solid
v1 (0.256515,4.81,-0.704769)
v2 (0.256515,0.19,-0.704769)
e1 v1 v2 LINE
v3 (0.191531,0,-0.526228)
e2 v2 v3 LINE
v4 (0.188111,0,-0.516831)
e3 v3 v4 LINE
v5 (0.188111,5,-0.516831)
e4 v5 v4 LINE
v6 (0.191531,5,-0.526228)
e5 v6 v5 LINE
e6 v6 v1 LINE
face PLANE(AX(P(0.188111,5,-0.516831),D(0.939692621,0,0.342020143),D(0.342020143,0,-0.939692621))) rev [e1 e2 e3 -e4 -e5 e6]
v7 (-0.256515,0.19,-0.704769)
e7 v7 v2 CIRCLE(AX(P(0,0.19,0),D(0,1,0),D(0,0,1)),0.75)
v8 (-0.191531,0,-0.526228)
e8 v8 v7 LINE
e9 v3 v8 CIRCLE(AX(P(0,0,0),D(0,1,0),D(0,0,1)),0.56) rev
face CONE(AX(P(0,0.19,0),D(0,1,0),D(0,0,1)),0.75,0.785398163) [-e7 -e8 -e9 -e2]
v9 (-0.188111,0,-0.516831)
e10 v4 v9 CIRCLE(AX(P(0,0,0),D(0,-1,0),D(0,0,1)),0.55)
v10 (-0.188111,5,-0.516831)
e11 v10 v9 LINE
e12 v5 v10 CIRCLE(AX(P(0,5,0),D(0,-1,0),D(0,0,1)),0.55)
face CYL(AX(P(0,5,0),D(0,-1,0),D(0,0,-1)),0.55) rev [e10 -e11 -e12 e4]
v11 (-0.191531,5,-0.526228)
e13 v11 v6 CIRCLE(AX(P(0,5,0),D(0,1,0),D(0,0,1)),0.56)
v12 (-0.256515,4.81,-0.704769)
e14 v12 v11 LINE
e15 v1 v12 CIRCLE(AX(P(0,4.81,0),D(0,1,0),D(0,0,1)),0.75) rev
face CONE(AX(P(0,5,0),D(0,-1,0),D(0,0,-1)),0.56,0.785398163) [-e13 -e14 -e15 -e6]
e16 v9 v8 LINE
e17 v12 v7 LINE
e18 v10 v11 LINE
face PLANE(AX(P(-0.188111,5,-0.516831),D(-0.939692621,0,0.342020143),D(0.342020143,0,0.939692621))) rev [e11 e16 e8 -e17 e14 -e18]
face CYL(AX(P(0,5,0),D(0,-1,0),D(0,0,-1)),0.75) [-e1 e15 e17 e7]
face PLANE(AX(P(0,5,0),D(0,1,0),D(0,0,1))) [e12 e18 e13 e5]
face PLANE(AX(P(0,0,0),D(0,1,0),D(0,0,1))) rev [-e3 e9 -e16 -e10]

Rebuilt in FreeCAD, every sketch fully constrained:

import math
import FreeCAD as App
import Part
import Sketcher
from FreeCAD import Vector
Q = App.Units.Quantity


def edges_at(feature, points):
    """Names of the edges that pass closest to the given points."""
    edges = feature.Shape.Edges
    near = lambda p: min(range(len(edges)), key=lambda i: edges[i].distToShape(Part.Vertex(*p))[0])
    return sorted({f"Edge{near(p) + 1}" for p in points})

doc = App.newDocument("Part")
body = doc.addObject("PartDesign::Body", "Body")

# Sketch on XZ plane
sketch1 = body.newObject("Sketcher::SketchObject", "Sketch")
sketch1.AttachmentSupport = (doc.getObject("XZ_Plane"), [""])
sketch1.MapMode = "FlatFace"
sketch1.addGeometry(Part.LineSegment(Vector(0.26, -0.7, 0), Vector(0.19, -0.52, 0)), False)
sketch1.addGeometry(Part.ArcOfCircle(Part.Circle(Vector(0, 0, 0), Vector(0, 0, 1), 0.55), math.radians(-70), math.radians(250)), False)
sketch1.addGeometry(Part.LineSegment(Vector(-0.19, -0.52, 0), Vector(-0.26, -0.7, 0)), False)
sketch1.addGeometry(Part.ArcOfCircle(Part.Circle(Vector(0, 0, 0), Vector(0, 0, 1), 0.75), math.radians(-70), math.radians(250)), False)
sketch1.addConstraint(Sketcher.Constraint("Coincident", 0, 2, 1, 1))
sketch1.addConstraint(Sketcher.Constraint("Coincident", 1, 2, 2, 1))
sketch1.addConstraint(Sketcher.Constraint("Coincident", 2, 2, 3, 2))
sketch1.addConstraint(Sketcher.Constraint("Coincident", 3, 1, 0, 1))
sketch1.addConstraint(Sketcher.Constraint("Coincident", 1, 3, -1, 1))
sketch1.addConstraint(Sketcher.Constraint("Coincident", 3, 3, -1, 1))
sketch1.addConstraint(Sketcher.Constraint("Horizontal", 0, 2, 1, 2))
sketch1.addConstraint(Sketcher.Constraint("Horizontal", 2, 2, 3, 1))
sketch1.addConstraint(Sketcher.Constraint("Angle", 0, Q("110 deg")))
sketch1.addConstraint(Sketcher.Constraint("Radius", 1, Q("0.55 mm")))
sketch1.addConstraint(Sketcher.Constraint("Radius", 3, Q("0.75 mm")))
sketch1.addConstraint(Sketcher.Constraint("DistanceX", -1, 1, 0, 2, Q("0.188111 mm")))
pad1 = body.newObject("PartDesign::Pad", "Pad")
pad1.Profile = sketch1
pad1.Length = 5
pad1.Reversed = True
doc.recompute()

chamfer = body.newObject("PartDesign::Chamfer", "Chamfer")
chamfer.Base = (pad1, edges_at(pad1, [(0, 5, 0.75), (0, 0, 0.75)]))
chamfer.Size = 0.19

doc.recompute()
